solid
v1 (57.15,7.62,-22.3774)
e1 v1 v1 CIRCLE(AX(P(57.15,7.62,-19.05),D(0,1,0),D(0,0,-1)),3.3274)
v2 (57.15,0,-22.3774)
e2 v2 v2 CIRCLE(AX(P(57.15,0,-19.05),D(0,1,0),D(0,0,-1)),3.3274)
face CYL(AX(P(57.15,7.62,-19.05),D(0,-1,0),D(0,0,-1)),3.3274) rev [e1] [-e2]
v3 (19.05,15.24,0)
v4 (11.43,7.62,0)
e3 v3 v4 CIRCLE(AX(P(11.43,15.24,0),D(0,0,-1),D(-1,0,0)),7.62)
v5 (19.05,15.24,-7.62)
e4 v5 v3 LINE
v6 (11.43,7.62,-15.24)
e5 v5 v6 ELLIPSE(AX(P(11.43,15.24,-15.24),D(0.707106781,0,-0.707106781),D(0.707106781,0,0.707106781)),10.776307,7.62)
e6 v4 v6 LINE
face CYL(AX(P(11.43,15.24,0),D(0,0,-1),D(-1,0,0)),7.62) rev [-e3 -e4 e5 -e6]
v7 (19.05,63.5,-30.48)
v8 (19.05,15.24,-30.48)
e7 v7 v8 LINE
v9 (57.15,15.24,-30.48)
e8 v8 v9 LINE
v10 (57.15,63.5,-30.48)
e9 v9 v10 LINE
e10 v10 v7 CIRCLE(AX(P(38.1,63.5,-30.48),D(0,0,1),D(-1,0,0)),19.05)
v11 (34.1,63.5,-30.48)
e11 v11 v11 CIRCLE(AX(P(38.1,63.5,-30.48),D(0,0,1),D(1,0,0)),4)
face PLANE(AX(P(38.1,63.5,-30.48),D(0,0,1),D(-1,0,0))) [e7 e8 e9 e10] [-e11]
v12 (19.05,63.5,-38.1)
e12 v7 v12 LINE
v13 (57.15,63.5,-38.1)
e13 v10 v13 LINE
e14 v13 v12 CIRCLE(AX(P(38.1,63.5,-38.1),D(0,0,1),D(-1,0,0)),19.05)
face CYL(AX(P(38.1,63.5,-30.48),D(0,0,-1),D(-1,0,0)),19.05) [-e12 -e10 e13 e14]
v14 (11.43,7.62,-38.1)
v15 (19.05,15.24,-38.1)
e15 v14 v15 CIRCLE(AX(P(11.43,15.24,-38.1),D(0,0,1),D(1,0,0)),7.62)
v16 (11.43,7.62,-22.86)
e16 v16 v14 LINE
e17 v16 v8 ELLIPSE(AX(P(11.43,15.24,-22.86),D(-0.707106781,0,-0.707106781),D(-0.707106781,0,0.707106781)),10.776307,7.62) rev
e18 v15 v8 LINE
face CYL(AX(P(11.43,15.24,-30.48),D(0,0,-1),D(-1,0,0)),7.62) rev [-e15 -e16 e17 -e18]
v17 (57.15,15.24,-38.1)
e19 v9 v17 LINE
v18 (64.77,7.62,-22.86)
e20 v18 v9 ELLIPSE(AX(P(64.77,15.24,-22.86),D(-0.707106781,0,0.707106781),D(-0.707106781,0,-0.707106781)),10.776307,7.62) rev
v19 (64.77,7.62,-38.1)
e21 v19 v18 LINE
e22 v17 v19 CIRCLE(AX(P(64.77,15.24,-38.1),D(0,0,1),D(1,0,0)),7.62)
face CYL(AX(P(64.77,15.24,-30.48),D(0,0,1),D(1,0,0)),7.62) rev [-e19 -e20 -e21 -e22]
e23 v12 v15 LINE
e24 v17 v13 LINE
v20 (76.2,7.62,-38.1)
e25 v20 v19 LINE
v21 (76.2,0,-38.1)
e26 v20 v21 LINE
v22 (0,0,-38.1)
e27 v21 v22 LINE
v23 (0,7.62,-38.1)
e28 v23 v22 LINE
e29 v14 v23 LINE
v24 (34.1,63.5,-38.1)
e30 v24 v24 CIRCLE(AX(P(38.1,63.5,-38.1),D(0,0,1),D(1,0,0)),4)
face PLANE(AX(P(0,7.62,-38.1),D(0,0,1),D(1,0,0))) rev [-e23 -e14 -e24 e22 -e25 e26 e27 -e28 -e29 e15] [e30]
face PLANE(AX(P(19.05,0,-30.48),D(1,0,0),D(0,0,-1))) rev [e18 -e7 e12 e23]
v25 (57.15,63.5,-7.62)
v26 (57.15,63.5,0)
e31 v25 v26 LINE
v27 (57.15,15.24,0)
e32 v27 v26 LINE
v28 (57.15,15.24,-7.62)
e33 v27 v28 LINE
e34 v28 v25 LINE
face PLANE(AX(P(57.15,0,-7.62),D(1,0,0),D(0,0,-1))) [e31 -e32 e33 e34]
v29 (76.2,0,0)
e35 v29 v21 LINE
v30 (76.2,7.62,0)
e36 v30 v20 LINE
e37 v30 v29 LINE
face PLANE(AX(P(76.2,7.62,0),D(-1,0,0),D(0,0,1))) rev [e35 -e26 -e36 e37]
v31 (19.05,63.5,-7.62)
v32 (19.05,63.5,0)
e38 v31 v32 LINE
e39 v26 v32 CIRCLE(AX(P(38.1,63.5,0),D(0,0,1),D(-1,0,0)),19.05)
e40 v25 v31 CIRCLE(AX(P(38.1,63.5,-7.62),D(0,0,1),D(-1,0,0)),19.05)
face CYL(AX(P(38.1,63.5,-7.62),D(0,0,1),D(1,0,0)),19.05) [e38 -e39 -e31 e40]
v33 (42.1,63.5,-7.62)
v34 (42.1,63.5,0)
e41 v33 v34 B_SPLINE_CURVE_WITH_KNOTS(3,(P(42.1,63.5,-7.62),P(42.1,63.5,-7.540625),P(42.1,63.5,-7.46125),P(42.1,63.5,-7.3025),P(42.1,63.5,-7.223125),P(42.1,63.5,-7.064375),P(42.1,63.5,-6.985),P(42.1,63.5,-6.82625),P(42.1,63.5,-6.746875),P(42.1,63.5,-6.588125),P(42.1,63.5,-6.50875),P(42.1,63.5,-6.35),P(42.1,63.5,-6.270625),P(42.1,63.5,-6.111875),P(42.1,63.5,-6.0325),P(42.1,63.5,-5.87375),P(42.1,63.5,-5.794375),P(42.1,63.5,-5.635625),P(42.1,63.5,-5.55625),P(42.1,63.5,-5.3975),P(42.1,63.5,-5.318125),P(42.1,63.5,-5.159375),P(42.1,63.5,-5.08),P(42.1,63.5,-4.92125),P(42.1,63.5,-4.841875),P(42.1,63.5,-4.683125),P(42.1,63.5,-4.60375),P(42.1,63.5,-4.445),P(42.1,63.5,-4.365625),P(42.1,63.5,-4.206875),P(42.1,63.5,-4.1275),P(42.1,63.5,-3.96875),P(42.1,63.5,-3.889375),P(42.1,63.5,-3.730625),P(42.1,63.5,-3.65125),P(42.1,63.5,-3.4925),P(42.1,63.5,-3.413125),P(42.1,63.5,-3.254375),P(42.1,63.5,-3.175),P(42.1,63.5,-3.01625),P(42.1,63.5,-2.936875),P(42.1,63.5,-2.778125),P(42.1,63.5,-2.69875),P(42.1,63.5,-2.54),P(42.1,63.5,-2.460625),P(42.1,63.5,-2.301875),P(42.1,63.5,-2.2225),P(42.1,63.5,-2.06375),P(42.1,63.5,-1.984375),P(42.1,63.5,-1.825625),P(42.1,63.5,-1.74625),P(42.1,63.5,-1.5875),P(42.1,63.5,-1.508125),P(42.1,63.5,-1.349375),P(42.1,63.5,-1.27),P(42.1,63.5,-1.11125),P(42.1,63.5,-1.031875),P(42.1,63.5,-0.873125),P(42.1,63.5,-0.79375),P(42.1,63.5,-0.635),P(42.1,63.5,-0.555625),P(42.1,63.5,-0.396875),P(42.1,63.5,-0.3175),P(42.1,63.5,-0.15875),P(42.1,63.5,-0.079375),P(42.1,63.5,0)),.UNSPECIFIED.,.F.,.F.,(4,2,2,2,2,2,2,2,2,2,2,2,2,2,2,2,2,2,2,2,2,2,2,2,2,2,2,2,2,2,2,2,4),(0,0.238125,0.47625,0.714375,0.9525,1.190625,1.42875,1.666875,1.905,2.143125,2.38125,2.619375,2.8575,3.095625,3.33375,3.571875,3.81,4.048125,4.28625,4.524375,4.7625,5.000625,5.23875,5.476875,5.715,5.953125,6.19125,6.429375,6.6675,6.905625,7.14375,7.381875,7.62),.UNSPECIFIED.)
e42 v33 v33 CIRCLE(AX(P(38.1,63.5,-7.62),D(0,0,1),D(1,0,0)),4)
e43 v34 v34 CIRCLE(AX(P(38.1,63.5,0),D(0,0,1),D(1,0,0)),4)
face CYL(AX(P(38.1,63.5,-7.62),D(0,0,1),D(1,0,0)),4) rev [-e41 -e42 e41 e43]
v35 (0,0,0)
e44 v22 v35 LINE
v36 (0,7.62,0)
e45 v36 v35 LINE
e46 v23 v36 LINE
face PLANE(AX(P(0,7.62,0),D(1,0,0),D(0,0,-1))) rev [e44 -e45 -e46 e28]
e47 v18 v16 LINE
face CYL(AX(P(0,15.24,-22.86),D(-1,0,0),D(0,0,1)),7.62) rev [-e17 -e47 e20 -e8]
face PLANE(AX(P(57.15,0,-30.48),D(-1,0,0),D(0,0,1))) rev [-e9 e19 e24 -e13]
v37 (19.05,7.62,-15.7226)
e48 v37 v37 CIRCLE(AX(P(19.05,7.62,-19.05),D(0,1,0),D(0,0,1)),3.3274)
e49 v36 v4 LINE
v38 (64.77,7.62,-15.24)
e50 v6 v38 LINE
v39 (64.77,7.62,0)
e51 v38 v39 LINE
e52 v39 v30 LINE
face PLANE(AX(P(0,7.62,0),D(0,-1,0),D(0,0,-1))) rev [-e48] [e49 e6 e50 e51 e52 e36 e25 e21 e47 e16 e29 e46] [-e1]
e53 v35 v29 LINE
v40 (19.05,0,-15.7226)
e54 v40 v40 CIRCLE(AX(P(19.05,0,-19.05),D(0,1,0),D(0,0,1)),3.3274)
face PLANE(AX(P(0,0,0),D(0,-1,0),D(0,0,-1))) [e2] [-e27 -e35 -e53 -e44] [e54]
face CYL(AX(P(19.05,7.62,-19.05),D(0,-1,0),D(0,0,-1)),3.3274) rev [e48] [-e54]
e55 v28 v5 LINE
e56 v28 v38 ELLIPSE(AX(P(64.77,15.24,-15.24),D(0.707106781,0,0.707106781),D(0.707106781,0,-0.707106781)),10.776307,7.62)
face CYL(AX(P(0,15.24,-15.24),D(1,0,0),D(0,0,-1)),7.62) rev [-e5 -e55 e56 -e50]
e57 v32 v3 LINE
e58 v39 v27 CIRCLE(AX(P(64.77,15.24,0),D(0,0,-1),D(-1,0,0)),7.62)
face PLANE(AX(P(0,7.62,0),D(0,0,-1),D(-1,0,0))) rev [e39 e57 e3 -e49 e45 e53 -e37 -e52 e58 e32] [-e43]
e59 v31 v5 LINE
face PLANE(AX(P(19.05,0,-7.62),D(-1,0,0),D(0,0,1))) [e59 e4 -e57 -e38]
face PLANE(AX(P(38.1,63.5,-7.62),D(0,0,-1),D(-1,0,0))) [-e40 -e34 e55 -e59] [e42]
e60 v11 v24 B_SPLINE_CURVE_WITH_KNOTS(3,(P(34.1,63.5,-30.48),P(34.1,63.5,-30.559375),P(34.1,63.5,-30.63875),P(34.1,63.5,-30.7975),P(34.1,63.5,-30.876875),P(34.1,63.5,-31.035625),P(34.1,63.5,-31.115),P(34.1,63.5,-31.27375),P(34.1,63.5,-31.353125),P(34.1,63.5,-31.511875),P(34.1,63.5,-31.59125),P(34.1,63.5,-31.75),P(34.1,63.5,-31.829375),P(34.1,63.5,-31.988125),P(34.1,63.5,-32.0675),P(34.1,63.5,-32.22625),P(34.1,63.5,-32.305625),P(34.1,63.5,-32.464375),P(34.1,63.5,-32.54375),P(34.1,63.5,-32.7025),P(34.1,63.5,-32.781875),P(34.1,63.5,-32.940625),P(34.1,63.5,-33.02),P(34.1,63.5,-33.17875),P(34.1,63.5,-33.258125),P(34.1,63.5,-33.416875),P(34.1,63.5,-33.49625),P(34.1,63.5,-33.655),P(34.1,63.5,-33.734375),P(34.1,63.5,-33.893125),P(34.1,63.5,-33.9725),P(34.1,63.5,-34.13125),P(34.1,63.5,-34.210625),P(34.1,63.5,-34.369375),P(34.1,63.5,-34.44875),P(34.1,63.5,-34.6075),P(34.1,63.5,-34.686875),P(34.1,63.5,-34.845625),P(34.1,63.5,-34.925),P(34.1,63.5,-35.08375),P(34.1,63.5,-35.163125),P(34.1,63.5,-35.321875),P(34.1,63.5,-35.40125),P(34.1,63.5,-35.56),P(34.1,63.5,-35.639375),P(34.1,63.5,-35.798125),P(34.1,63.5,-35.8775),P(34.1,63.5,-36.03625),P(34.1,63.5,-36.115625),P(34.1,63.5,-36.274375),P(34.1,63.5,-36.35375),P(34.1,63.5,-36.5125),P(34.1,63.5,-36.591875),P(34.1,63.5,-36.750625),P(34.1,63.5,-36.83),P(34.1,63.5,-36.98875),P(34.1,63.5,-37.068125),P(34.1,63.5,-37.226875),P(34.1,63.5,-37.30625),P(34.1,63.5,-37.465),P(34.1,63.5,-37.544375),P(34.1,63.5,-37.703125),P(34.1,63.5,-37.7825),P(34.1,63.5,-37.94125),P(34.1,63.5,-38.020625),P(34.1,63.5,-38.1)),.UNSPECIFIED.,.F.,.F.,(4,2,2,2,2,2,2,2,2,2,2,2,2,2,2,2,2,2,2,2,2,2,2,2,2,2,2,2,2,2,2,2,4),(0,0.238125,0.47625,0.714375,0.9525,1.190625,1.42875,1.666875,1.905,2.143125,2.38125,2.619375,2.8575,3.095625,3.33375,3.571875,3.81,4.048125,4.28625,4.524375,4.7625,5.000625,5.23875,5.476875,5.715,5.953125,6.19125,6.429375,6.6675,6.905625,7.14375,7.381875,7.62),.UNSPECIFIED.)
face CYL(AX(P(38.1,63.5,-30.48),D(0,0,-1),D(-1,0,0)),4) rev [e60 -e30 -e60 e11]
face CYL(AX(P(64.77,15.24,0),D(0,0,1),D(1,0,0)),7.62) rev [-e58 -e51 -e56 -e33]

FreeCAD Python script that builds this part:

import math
import FreeCAD as App
import Part
import Sketcher

V = App.Vector
Q = App.Units.Quantity


def edges_at(feature, points):
    """Names of the edges that pass closest to the given points."""
    edges = feature.Shape.Edges
    near = lambda p: min(range(len(edges)), key=lambda i: edges[i].distToShape(Part.Vertex(*p))[0])
    return sorted({f"Edge{near(p) + 1}" for p in points})

doc = App.newDocument("Part")
body = doc.addObject("PartDesign::Body", "Body")

# Sketch on XZ plane
sketch1 = body.newObject("Sketcher::SketchObject", "Sketch")
sketch1.AttachmentSupport = (doc.getObject("XZ_Plane"), [""])
sketch1.MapMode = "FlatFace"
sketch1.addGeometry(Part.LineSegment(V(0, -38.1, 0), V(0, 0, 0)), False)
sketch1.addGeometry(Part.LineSegment(V(0, 0, 0), V(76.2, 0, 0)), False)
sketch1.addGeometry(Part.LineSegment(V(76.2, 0, 0), V(76.2, -38.1, 0)), False)
sketch1.addGeometry(Part.LineSegment(V(76.2, -38.1, 0), V(0, -38.1, 0)), False)
sketch1.addGeometry(Part.Circle(V(19.1, -19.1, 0), V(0, 0, 1), 3.3), False)
sketch1.addGeometry(Part.Circle(V(57.1, -19.1, 0), V(0, 0, 1), 3.3), False)
sketch1.addConstraint(Sketcher.Constraint("Coincident", 0, 2, 1, 1))
sketch1.addConstraint(Sketcher.Constraint("Coincident", 1, 2, 2, 1))
sketch1.addConstraint(Sketcher.Constraint("Coincident", 2, 2, 3, 1))
sketch1.addConstraint(Sketcher.Constraint("Coincident", 3, 2, 0, 1))
sketch1.addConstraint(Sketcher.Constraint("Vertical", 0))
sketch1.addConstraint(Sketcher.Constraint("Horizontal", 1))
sketch1.addConstraint(Sketcher.Constraint("Vertical", 2))
sketch1.addConstraint(Sketcher.Constraint("Horizontal", 3))
sketch1.addConstraint(Sketcher.Constraint("Coincident", 0, 2, -1, 1))
sketch1.addConstraint(Sketcher.Constraint("Equal", 4, 5))
sketch1.addConstraint(Sketcher.Constraint("Horizontal", 4, 3, 5, 3))
sketch1.addConstraint(Sketcher.Constraint("DistanceX", 1, 1, 1, 2, Q("3 in")))
sketch1.addConstraint(Sketcher.Constraint("Diameter", 4, Q("0.262 in")))
sketch1.addConstraint(Sketcher.Constraint("DistanceY", 0, 1, 0, 2, Q("1.5 in")))
sketch1.addConstraint(Sketcher.Constraint("DistanceX", 4, 3, 5, 3, Q("1.5 in")))
sketch1.addConstraint(Sketcher.Constraint("DistanceX", -1, 1, 4, 3, Q("0.75 in")))
sketch1.addConstraint(Sketcher.Constraint("DistanceY", 4, 3, -1, 1, Q("0.75 in")))
pad1 = body.newObject("PartDesign::Pad", "Pad")
pad1.Profile = sketch1
pad1.Length = Q("0.3 in")
pad1.Reversed = True

# Sketch on XY plane
sketch2 = body.newObject("Sketcher::SketchObject", "Sketch001")
sketch2.AttachmentSupport = (doc.getObject("XY_Plane"), [""])
sketch2.MapMode = "FlatFace"
sketch2.addGeometry(Part.LineSegment(V(19.1, 63.5, 0), V(19.1, 0, 0)), False)
sketch2.addGeometry(Part.LineSegment(V(19.1, 0, 0), V(57.1, 0, 0)), False)
sketch2.addGeometry(Part.LineSegment(V(57.1, 0, 0), V(57.1, 63.5, 0)), False)
sketch2.addGeometry(Part.ArcOfCircle(Part.Circle(V(38.1, 63.5, 0), V(0, 0, 1), 19.1), math.radians(0), math.radians(180)), False)
sketch2.addGeometry(Part.Circle(V(38.1, 63.5, 0), V(0, 0, 1), 4), False)
sketch2.addConstraint(Sketcher.Constraint("Coincident", 0, 2, 1, 1))
sketch2.addConstraint(Sketcher.Constraint("Coincident", 1, 2, 2, 1))
sketch2.addConstraint(Sketcher.Constraint("Tangent", 2, 2, 3, 1))
sketch2.addConstraint(Sketcher.Constraint("Tangent", 3, 2, 0, 1))
sketch2.addConstraint(Sketcher.Constraint("Vertical", 0))
sketch2.addConstraint(Sketcher.Constraint("Horizontal", 1))
sketch2.addConstraint(Sketcher.Constraint("Vertical", 2))
sketch2.addConstraint(Sketcher.Constraint("Coincident", 4, 3, 3, 3))
sketch2.addConstraint(Sketcher.Constraint("PointOnObject", 0, 2, -1))
sketch2.addConstraint(Sketcher.Constraint("Radius", 3, Q("0.75 in")))
sketch2.addConstraint(Sketcher.Constraint("DistanceY", 0, 2, 0, 1, Q("2.5 in")))
sketch2.addConstraint(Sketcher.Constraint("DistanceX", -1, 1, 3, 3, Q("1.5 in")))
sketch2.addConstraint(Sketcher.Constraint("Diameter", 4, Q("8 mm")))
pad2 = body.newObject("PartDesign::Pad", "Pad001")
pad2.Profile = sketch2
pad2.Length = Q("0.3 in")
pad2.Reversed = True
doc.recompute()

fillet = body.newObject("PartDesign::Fillet", "Fillet")
fillet.Base = (pad2, edges_at(pad2, [(19.05, 7.62, -3.81), (57.15, 7.62, -3.81), (38.1, 7.62, -7.62)]))
fillet.Radius = Q("0.3 in")
doc.recompute()

datumplane = body.newObject("PartDesign::Plane", "DatumPlane")
datumplane.AttachmentSupport = (doc.getObject("XY_Plane"), [""])
datumplane.MapMode = "FlatFace"
datumplane.AttachmentOffset = App.Placement(V(0, 0, -0.75 * 25.4), App.Rotation())
mirrored = body.newObject("PartDesign::Mirrored", "Mirrored")
mirrored.Originals = [pad2]
mirrored.MirrorPlane = (datumplane, [""])
body.Tip = mirrored
doc.recompute()

fillet2 = body.newObject("PartDesign::Fillet", "Fillet001")
fillet2.Base = (mirrored, edges_at(mirrored, [(19.05, 7.62, -34.29), (57.15, 7.62, -34.29), (38.1, 7.62, -30.48)]))
fillet2.Radius = Q("0.3 in")

doc.recompute()
